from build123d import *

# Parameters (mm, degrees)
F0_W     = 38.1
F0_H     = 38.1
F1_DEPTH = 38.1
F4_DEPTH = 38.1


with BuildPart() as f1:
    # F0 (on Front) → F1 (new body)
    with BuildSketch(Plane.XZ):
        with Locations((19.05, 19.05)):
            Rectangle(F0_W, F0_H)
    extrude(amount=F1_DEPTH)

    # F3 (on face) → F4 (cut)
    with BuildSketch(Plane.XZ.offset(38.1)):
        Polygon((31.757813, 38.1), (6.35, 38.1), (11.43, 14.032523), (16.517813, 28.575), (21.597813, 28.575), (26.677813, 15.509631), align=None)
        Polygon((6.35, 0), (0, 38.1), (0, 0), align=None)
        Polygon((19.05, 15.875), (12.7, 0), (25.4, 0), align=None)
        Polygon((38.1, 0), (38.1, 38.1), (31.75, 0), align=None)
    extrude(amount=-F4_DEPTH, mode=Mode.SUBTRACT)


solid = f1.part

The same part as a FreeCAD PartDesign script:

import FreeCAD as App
import Part
import Sketcher
Q = App.Units.Quantity


def add_polygon(sketch, points):
    """Adds a closed chain of lines whose ends are joined by coincident constraints."""
    first, n = sketch.GeometryCount, len(points)
    for a, b in zip(points, points[1:] + points[:1]):
        sketch.addGeometry(Part.LineSegment(App.Vector(*a, 0), App.Vector(*b, 0)), False)
    for i in range(n):
        sketch.addConstraint(Sketcher.Constraint("Coincident", first + i, 2, first + (i + 1) % n, 1))

doc = App.newDocument("Part")
body = doc.addObject("PartDesign::Body", "Body")

# Sketch on XZ plane
sketch1 = doc.addObject("Sketcher::SketchObject", "Sketch")
body.addObject(sketch1)
sketch1.AttachmentSupport = (doc.XZ_Plane, [""])
sketch1.MapMode = "FlatFace"
add_polygon(sketch1, [(0, 38), (0, 0), (38, 0), (38, 38)])  # lines 0-3
sketch1.addConstraint([
    Sketcher.Constraint("Vertical", 0),
    Sketcher.Constraint("Horizontal", 1),
    Sketcher.Constraint("Vertical", 2),
    Sketcher.Constraint("Horizontal", 3),
    Sketcher.Constraint("Coincident", 0, 2, -1, 1),
    Sketcher.Constraint("Equal", 3, 0),
    Sketcher.Constraint("DistanceX", 1, 1, 1, 2, Q("1.5 in")),
])
pad1 = doc.addObject("PartDesign::Pad", "Pad")
body.addObject(pad1)
pad1.Profile = sketch1
pad1.Length = Q("1.5 in")

# Sketch on XZ plane
sketch2 = doc.addObject("Sketcher::SketchObject", "Sketch001")
body.addObject(sketch2)
sketch2.AttachmentSupport = (doc.XZ_Plane, [""])
sketch2.MapMode = "FlatFace"
sketch2.AttachmentOffset = App.Placement(App.Vector(0, 0, 1.5 * 25.4), App.Rotation())
add_polygon(sketch2, [(32, 38), (6, 38), (11, 14), (17, 29), (22, 29), (27, 16)])  # lines 0-5
add_polygon(sketch2, [(6, 0), (0, 38), (0, 0)])  # lines 6-8
add_polygon(sketch2, [(19, 16), (13, 0), (25, 0)])  # lines 9-11
add_polygon(sketch2, [(38, 0), (38, 38), (32, 0)])  # lines 12-14
sketch2.addConstraint([
    Sketcher.Constraint("Horizontal", 0),
    Sketcher.Constraint("Horizontal", 3),
    Sketcher.Constraint("Vertical", 7),
    Sketcher.Constraint("Horizontal", 8),
    Sketcher.Constraint("Horizontal", 10),
    Sketcher.Constraint("Vertical", 12),
    Sketcher.Constraint("Horizontal", 14),
    Sketcher.Constraint("Coincident", 7, 2, -1, 1),
    Sketcher.Constraint("PointOnObject", 9, 2, -1),
    Sketcher.Constraint("PointOnObject", 13, 2, -1),
    Sketcher.Constraint("Horizontal", 5, 2, 6, 2),
    Sketcher.Constraint("Horizontal", 6, 2, 12, 2),
    Sketcher.Constraint("Vertical", 0, 2, 8, 2),
    Sketcher.Constraint("Equal", 8, 14),
    Sketcher.Constraint("Equal", 9, 11),
    Sketcher.Constraint("DistanceX", 3, 1, 3, 2, Q("0.2 in")),
    Sketcher.Constraint("DistanceX", 10, 1, 10, 2, Q("0.5 in")),
    Sketcher.Constraint("DistanceY", 7, 2, 7, 1, Q("1.5 in")),
    Sketcher.Constraint("DistanceX", -1, 1, 10, 2, Q("1 in")),
    Sketcher.Constraint("DistanceX", 9, 2, 14, 2, Q("1 in")),
    Sketcher.Constraint("DistanceX", 8, 1, 8, 2, Q("0.25 in")),
    Sketcher.Constraint("DistanceX", 0, 2, 1, 2, Q("0.2 in")),
    Sketcher.Constraint("DistanceX", 3, 2, 4, 2, Q("0.2 in")),
    Sketcher.Constraint("DistanceX", 3, 2, 5, 2, Q("0.4 in")),
    Sketcher.Constraint("DistanceY", 11, 2, 2, 2, Q("0.5 in")),
    Sketcher.Constraint("DistanceY", -1, 1, 2, 2, Q("1.125 in")),
    Sketcher.Constraint("Distance", 2, 15.4068),
    Sketcher.Constraint("Distance", 1, 24.597761),
    Sketcher.Constraint("Distance", 4, 14.018212),
])
pocket1 = doc.addObject("PartDesign::Pocket", "Pocket")
body.addObject(pocket1)
pocket1.Profile = sketch2
pocket1.Length = Q("1.5 in")

doc.recompute()
